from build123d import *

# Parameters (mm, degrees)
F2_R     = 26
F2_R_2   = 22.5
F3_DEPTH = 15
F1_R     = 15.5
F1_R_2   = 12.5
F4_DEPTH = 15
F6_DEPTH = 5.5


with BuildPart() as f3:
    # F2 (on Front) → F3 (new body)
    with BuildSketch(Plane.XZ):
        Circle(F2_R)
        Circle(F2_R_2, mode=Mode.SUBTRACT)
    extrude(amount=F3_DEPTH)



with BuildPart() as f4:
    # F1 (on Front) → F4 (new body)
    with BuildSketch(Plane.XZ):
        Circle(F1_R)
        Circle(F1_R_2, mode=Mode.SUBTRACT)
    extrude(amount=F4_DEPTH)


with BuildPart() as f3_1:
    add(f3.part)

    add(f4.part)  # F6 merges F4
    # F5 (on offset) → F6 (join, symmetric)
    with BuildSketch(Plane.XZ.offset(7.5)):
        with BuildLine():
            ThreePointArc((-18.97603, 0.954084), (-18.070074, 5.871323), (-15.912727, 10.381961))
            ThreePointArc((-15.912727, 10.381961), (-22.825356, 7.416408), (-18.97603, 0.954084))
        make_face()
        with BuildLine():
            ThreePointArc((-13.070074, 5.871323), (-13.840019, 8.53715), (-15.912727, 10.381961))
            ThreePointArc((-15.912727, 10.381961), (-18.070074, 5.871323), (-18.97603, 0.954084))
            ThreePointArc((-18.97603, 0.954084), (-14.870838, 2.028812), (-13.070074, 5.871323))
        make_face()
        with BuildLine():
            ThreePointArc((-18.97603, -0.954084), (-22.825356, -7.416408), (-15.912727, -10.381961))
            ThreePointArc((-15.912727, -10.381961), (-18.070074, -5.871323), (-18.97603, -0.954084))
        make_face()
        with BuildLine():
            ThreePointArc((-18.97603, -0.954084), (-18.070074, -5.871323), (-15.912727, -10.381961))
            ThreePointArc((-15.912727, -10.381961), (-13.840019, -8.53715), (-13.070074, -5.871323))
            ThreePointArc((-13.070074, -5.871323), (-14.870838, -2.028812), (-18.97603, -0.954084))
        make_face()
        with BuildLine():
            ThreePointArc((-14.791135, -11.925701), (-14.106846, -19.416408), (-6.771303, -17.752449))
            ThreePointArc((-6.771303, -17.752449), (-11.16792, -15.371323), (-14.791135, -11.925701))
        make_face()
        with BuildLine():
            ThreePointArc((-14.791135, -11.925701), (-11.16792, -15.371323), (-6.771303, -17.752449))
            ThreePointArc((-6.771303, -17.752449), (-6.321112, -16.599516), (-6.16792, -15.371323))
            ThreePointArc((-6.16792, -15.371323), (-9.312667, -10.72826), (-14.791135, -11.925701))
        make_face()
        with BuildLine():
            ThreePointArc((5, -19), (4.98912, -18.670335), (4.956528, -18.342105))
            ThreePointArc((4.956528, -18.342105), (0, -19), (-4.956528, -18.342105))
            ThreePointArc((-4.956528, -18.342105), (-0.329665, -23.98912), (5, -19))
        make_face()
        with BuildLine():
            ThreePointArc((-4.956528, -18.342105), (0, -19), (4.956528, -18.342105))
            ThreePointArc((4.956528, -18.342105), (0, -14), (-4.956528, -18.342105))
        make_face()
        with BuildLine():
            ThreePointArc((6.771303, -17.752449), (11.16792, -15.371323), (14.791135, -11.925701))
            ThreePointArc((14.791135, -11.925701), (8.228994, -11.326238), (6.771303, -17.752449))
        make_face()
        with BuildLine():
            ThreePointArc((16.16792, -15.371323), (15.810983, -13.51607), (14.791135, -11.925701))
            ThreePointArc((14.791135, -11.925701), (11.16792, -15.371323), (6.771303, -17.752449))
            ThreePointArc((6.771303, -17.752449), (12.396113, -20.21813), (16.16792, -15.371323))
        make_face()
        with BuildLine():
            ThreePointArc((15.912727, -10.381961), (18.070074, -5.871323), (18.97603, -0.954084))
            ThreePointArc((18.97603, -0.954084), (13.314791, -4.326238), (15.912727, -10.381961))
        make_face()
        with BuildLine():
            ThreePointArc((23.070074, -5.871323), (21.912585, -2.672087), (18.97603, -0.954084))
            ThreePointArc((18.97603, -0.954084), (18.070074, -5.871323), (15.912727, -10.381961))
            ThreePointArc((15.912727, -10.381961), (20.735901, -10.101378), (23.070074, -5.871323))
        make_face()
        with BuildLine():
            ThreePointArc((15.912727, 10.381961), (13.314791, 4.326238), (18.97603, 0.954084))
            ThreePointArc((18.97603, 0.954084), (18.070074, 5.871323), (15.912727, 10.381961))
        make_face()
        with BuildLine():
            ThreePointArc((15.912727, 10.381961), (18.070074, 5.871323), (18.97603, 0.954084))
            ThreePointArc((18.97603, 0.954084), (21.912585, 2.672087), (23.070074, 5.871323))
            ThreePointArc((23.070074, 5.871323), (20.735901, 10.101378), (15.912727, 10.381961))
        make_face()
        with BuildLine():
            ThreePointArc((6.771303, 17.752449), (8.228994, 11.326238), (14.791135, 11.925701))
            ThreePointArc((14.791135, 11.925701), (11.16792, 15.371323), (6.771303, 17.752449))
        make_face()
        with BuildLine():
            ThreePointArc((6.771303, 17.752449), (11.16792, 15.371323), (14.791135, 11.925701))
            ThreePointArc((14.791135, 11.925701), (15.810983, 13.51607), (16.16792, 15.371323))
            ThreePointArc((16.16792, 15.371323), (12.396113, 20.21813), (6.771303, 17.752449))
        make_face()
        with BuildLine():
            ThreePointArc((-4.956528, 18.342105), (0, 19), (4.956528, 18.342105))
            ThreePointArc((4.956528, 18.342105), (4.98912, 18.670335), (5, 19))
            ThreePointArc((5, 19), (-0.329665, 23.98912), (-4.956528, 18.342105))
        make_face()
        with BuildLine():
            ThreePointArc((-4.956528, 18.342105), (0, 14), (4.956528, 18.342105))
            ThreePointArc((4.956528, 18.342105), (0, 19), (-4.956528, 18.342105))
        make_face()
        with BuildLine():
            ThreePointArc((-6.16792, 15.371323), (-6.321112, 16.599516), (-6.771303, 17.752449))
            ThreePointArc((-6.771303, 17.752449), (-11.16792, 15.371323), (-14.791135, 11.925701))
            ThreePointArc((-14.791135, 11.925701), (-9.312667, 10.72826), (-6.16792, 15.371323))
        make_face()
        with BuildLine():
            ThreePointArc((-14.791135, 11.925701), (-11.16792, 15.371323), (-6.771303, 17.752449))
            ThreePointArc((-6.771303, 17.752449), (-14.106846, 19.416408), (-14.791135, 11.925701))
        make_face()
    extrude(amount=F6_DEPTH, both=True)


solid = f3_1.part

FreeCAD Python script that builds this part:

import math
import FreeCAD as App
import Part
import Sketcher
from FreeCAD import Vector

doc = App.newDocument("Part")
body = doc.addObject("PartDesign::Body", "Body")

sketch1 = body.newObject("Sketcher::SketchObject", "Sketch")
sketch1.AttachmentSupport = (doc.getObject("XZ_Plane"), [""])
sketch1.MapMode = "FlatFace"
sketch1.addGeometry(Part.Circle(Vector(0, 0, 0), Vector(0, 0, 1), 26), False)
sketch1.addGeometry(Part.Circle(Vector(0, 0, 0), Vector(0, 0, 1), 22.5), False)
sketch1.addConstraint(Sketcher.Constraint("Coincident", 0, 3, -1, 1))
sketch1.addConstraint(Sketcher.Constraint("Coincident", 1, 3, -1, 1))
sketch1.addConstraint(Sketcher.Constraint("Diameter", 0, 52.0))
sketch1.addConstraint(Sketcher.Constraint("Diameter", 1, 45.0))
pad1 = body.newObject("PartDesign::Pad", "Pad")
pad1.Profile = sketch1
pad1.Length = 15
body2 = doc.addObject("PartDesign::Body", "Body001")

sketch2 = body2.newObject("Sketcher::SketchObject", "Sketch001")
sketch2.AttachmentSupport = (doc.getObject("XZ_Plane001"), [""])
sketch2.MapMode = "FlatFace"
sketch2.addGeometry(Part.Circle(Vector(0, 0, 0), Vector(0, 0, 1), 15.5), False)
sketch2.addGeometry(Part.Circle(Vector(0, 0, 0), Vector(0, 0, 1), 12.5), False)
sketch2.addConstraint(Sketcher.Constraint("Coincident", 0, 3, -1, 1))
sketch2.addConstraint(Sketcher.Constraint("Coincident", 1, 3, -1, 1))
sketch2.addConstraint(Sketcher.Constraint("Diameter", 0, 31.0))
sketch2.addConstraint(Sketcher.Constraint("Diameter", 1, 25.0))
pad2 = body2.newObject("PartDesign::Pad", "Pad001")
pad2.Profile = sketch2
pad2.Length = 15
body.AllowCompound = True
doc.recompute()

boolean = body.newObject("PartDesign::Boolean", "Boolean")
boolean.Type = "Fuse"
boolean.addObjects([body2])

sketch3 = body.newObject("Sketcher::SketchObject", "Sketch002")
sketch3.AttachmentSupport = (doc.getObject("XZ_Plane"), [""])
sketch3.MapMode = "FlatFace"
sketch3.AttachmentOffset = App.Placement(Vector(0, 0, 7.5), App.Rotation())
sketch3.addGeometry(Part.ArcOfCircle(Part.Circle(Vector(-18.070074, 5.871323, 0), Vector(0, 0, 1), 5), math.radians(64.439156), math.radians(259.560843)), False)
sketch3.addGeometry(Part.ArcOfCircle(Part.Circle(Vector(-18.070073, 5.871322, 0), Vector(0, 0, 1), 4.999999), math.radians(-100.439164), math.radians(0.000008)), False)
sketch3.addGeometry(Part.ArcOfCircle(Part.Circle(Vector(-18.070075, 5.871323, 0), Vector(0, 0, 1), 5.000001), math.radians(0.000006), math.radians(64.439145)), False)
sketch3.addGeometry(Part.ArcOfCircle(Part.Circle(Vector(-18.070074, -5.871323, 0), Vector(0, 0, 1), 5), math.radians(100.439157), math.radians(295.560844)), False)
sketch3.addGeometry(Part.ArcOfCircle(Part.Circle(Vector(-18.070075, -5.871323, 0), Vector(0, 0, 1), 5.000001), math.radians(-64.439145), math.radians(-0.000006)), False)
sketch3.addGeometry(Part.ArcOfCircle(Part.Circle(Vector(-18.070073, -5.871322, 0), Vector(0, 0, 1), 4.999999), math.radians(-0.000008), math.radians(100.439164)), False)
sketch3.addGeometry(Part.ArcOfCircle(Part.Circle(Vector(-11.16792, -15.371323, 0), Vector(0, 0, 1), 5), math.radians(136.439162), math.radians(331.560848)), False)
sketch3.addGeometry(Part.ArcOfCircle(Part.Circle(Vector(-11.167905, -15.371327, 0), Vector(0, 0, 1), 4.999985), math.radians(-28.439191), math.radians(0.000049)), False)
sketch3.addGeometry(Part.ArcOfCircle(Part.Circle(Vector(-11.16792, -15.371323, 0), Vector(0, 0, 1), 5), math.radians(0.000003), math.radians(136.439159)), False)
sketch3.addGeometry(Part.ArcOfCircle(Part.Circle(Vector(-0.00002, -19.000005, 0), Vector(0, 0, 1), 5.00002), math.radians(0.000053), math.radians(7.560869)), False)
sketch3.addGeometry(Part.ArcOfCircle(Part.Circle(Vector(0, -18.999999, 0), Vector(0, 0, 1), 4.999999), math.radians(7.560841), math.radians(172.439159)), False)
sketch3.addGeometry(Part.ArcOfCircle(Part.Circle(Vector(0, -19, 0), Vector(0, 0, 1), 5), math.radians(172.439154), math.radians(360)), False)
sketch3.addGeometry(Part.ArcOfCircle(Part.Circle(Vector(11.16792, -15.371323, 0), Vector(0, 0, 1), 5), math.radians(43.560841), math.radians(208.439149)), False)
sketch3.addGeometry(Part.ArcOfCircle(Part.Circle(Vector(11.16792, -15.371322, 0), Vector(0, 0, 1), 5), math.radians(-151.560841), math.radians(-0.000007)), False)
sketch3.addGeometry(Part.ArcOfCircle(Part.Circle(Vector(11.167918, -15.371324, 0), Vector(0, 0, 1), 5.000002), math.radians(0.00001), math.radians(43.560835)), False)
sketch3.addGeometry(Part.ArcOfCircle(Part.Circle(Vector(18.070073, -5.871323, 0), Vector(0, 0, 1), 5), math.radians(79.56084), math.radians(244.439159)), False)
sketch3.addGeometry(Part.ArcOfCircle(Part.Circle(Vector(18.070074, -5.871323, 0), Vector(0, 0, 1), 5), math.radians(-115.560843), math.radians(-0.000003)), False)
sketch3.addGeometry(Part.ArcOfCircle(Part.Circle(Vector(18.070076, -5.871322, 0), Vector(0, 0, 1), 4.999998), math.radians(-0.000009), math.radians(79.560863)), False)
sketch3.addGeometry(Part.ArcOfCircle(Part.Circle(Vector(18.070073, 5.871323, 0), Vector(0, 0, 1), 5), math.radians(115.560841), math.radians(280.43916)), False)
sketch3.addGeometry(Part.ArcOfCircle(Part.Circle(Vector(18.070076, 5.871322, 0), Vector(0, 0, 1), 4.999998), math.radians(-79.560863), math.radians(0.000009)), False)
sketch3.addGeometry(Part.ArcOfCircle(Part.Circle(Vector(18.070074, 5.871323, 0), Vector(0, 0, 1), 5), math.radians(0.000003), math.radians(115.560843)), False)
sketch3.addGeometry(Part.ArcOfCircle(Part.Circle(Vector(11.16792, 15.371323, 0), Vector(0, 0, 1), 5), math.radians(151.560851), math.radians(316.439159)), False)
sketch3.addGeometry(Part.ArcOfCircle(Part.Circle(Vector(11.167918, 15.371324, 0), Vector(0, 0, 1), 5.000002), math.radians(-43.560835), math.radians(-0.00001)), False)
sketch3.addGeometry(Part.ArcOfCircle(Part.Circle(Vector(11.16792, 15.371322, 0), Vector(0, 0, 1), 5), math.radians(0.000007), math.radians(151.560841)), False)
sketch3.addGeometry(Part.ArcOfCircle(Part.Circle(Vector(-0.00002, 19.000005, 0), Vector(0, 0, 1), 5.00002), math.radians(-7.560869), math.radians(-0.000053)), False)
sketch3.addGeometry(Part.ArcOfCircle(Part.Circle(Vector(0, 19, 0), Vector(0, 0, 1), 5), math.radians(0), math.radians(187.560846)), False)
sketch3.addGeometry(Part.ArcOfCircle(Part.Circle(Vector(0, 18.999999, 0), Vector(0, 0, 1), 4.999999), math.radians(-172.439159), math.radians(-7.560841)), False)
sketch3.addGeometry(Part.ArcOfCircle(Part.Circle(Vector(-11.167905, 15.371327, 0), Vector(0, 0, 1), 4.999985), math.radians(-0.000049), math.radians(28.439191)), False)
sketch3.addGeometry(Part.ArcOfCircle(Part.Circle(Vector(-11.16792, 15.371323, 0), Vector(0, 0, 1), 5), math.radians(28.439152), math.radians(223.560838)), False)
sketch3.addGeometry(Part.ArcOfCircle(Part.Circle(Vector(-11.16792, 15.371323, 0), Vector(0, 0, 1), 5), math.radians(-136.439159), math.radians(-0.000003)), False)
sketch3.addConstraint(Sketcher.Constraint("Coincident", 0, 2, 1, 1))
sketch3.addConstraint(Sketcher.Constraint("Coincident", 1, 2, 2, 1))
sketch3.addConstraint(Sketcher.Constraint("Coincident", 2, 2, 0, 1))
sketch3.addConstraint(Sketcher.Constraint("Coincident", 3, 2, 4, 1))
sketch3.addConstraint(Sketcher.Constraint("Coincident", 4, 2, 5, 1))
sketch3.addConstraint(Sketcher.Constraint("Coincident", 5, 2, 3, 1))
sketch3.addConstraint(Sketcher.Constraint("Coincident", 6, 2, 7, 1))
sketch3.addConstraint(Sketcher.Constraint("Coincident", 7, 2, 8, 1))
sketch3.addConstraint(Sketcher.Constraint("Coincident", 8, 2, 6, 1))
sketch3.addConstraint(Sketcher.Constraint("Coincident", 9, 2, 10, 1))
sketch3.addConstraint(Sketcher.Constraint("Coincident", 10, 2, 11, 1))
sketch3.addConstraint(Sketcher.Constraint("Coincident", 11, 2, 9, 1))
sketch3.addConstraint(Sketcher.Constraint("Coincident", 12, 2, 13, 1))
sketch3.addConstraint(Sketcher.Constraint("Coincident", 13, 2, 14, 1))
sketch3.addConstraint(Sketcher.Constraint("Coincident", 14, 2, 12, 1))
sketch3.addConstraint(Sketcher.Constraint("Coincident", 15, 2, 16, 1))
sketch3.addConstraint(Sketcher.Constraint("Coincident", 16, 2, 17, 1))
sketch3.addConstraint(Sketcher.Constraint("Coincident", 17, 2, 15, 1))
sketch3.addConstraint(Sketcher.Constraint("Coincident", 18, 2, 19, 1))
sketch3.addConstraint(Sketcher.Constraint("Coincident", 19, 2, 20, 1))
sketch3.addConstraint(Sketcher.Constraint("Coincident", 20, 2, 18, 1))
sketch3.addConstraint(Sketcher.Constraint("Coincident", 21, 2, 22, 1))
sketch3.addConstraint(Sketcher.Constraint("Coincident", 22, 2, 23, 1))
sketch3.addConstraint(Sketcher.Constraint("Coincident", 23, 2, 21, 1))
sketch3.addConstraint(Sketcher.Constraint("Coincident", 24, 2, 25, 1))
sketch3.addConstraint(Sketcher.Constraint("Coincident", 25, 2, 26, 1))
sketch3.addConstraint(Sketcher.Constraint("Coincident", 26, 2, 24, 1))
sketch3.addConstraint(Sketcher.Constraint("Coincident", 27, 2, 28, 1))
sketch3.addConstraint(Sketcher.Constraint("Coincident", 28, 2, 29, 1))
sketch3.addConstraint(Sketcher.Constraint("Coincident", 29, 2, 27, 1))
sketch3.addConstraint(Sketcher.Constraint("Coincident", 1, 3, 0, 3))
sketch3.addConstraint(Sketcher.Constraint("Coincident", 4, 3, 3, 3))
sketch3.addConstraint(Sketcher.Constraint("Coincident", 8, 3, 6, 3))
sketch3.addConstraint(Sketcher.Constraint("Coincident", 11, 3, 10, 3))
sketch3.addConstraint(Sketcher.Constraint("Coincident", 13, 3, 12, 3))
sketch3.addConstraint(Sketcher.Constraint("Coincident", 16, 3, 15, 3))
sketch3.addConstraint(Sketcher.Constraint("Coincident", 19, 3, 18, 3))
sketch3.addConstraint(Sketcher.Constraint("Coincident", 22, 3, 21, 3))
sketch3.addConstraint(Sketcher.Constraint("Coincident", 26, 3, 25, 3))
sketch3.addConstraint(Sketcher.Constraint("Coincident", 29, 3, 28, 3))
sketch3.addConstraint(Sketcher.Constraint("PointOnObject", 10, 3, -2))
sketch3.addConstraint(Sketcher.Constraint("PointOnObject", 25, 3, -2))
sketch3.addConstraint(Sketcher.Constraint("Radius", 0, 5.0))
sketch3.addConstraint(Sketcher.Constraint("Radius", 2, 5.000001))
sketch3.addConstraint(Sketcher.Constraint("Radius", 3, 5.0))
sketch3.addConstraint(Sketcher.Constraint("Radius", 5, 4.999999))
sketch3.addConstraint(Sketcher.Constraint("Radius", 6, 5.0))
sketch3.addConstraint(Sketcher.Constraint("Radius", 10, 4.999999))
sketch3.addConstraint(Sketcher.Constraint("Radius", 12, 5.0))
sketch3.addConstraint(Sketcher.Constraint("Radius", 14, 5.000002))
sketch3.addConstraint(Sketcher.Constraint("Radius", 15, 5.0))
sketch3.addConstraint(Sketcher.Constraint("Radius", 17, 4.999998))
sketch3.addConstraint(Sketcher.Constraint("Radius", 18, 5.0))
sketch3.addConstraint(Sketcher.Constraint("Radius", 20, 5.0))
sketch3.addConstraint(Sketcher.Constraint("Radius", 21, 5.0))
sketch3.addConstraint(Sketcher.Constraint("Radius", 23, 5.0))
sketch3.addConstraint(Sketcher.Constraint("Radius", 25, 5.0))
sketch3.addConstraint(Sketcher.Constraint("Radius", 28, 5.0))
sketch3.addConstraint(Sketcher.Constraint("DistanceY", 10, 3, -1, 1, 18.999999))
sketch3.addConstraint(Sketcher.Constraint("DistanceY", -1, 1, 25, 3, 19.0))
sketch3.addConstraint(Sketcher.Constraint("DistanceY", 11, 2, -1, 1, 19.0))
sketch3.addConstraint(Sketcher.Constraint("DistanceY", -1, 1, 24, 2, 19.0))
sketch3.addConstraint(Sketcher.Constraint("DistanceY", 6, 3, 3, 3, 9.5))
sketch3.addConstraint(Sketcher.Constraint("DistanceY", 13, 3, 15, 3, 9.499999))
sketch3.addConstraint(Sketcher.Constraint("DistanceY", 18, 3, 21, 3, 9.5))
sketch3.addConstraint(Sketcher.Constraint("DistanceY", 0, 3, 28, 3, 9.5))
sketch3.addConstraint(Sketcher.Constraint("DistanceY", 1, 2, 28, 3, 9.5))
sketch3.addConstraint(Sketcher.Constraint("DistanceY", 13, 2, 15, 3, 9.5))
sketch3.addConstraint(Sketcher.Constraint("Radius", 9, 5.00002))
sketch3.addConstraint(Sketcher.Constraint("Radius", 24, 5.00002))
sketch3.addConstraint(Sketcher.Constraint("Radius", 7, 4.999985))
sketch3.addConstraint(Sketcher.Constraint("Radius", 27, 4.999985))
sketch3.addConstraint(Sketcher.Constraint("DistanceY", 8, 2, -1, 1, 11.925701))
sketch3.addConstraint(Sketcher.Constraint("DistanceY", 14, 2, -1, 1, 11.925701))
sketch3.addConstraint(Sketcher.Constraint("DistanceY", -1, 1, 21, 2, 11.925701))
sketch3.addConstraint(Sketcher.Constraint("DistanceY", -1, 1, 28, 2, 11.925701))
sketch3.addConstraint(Sketcher.Constraint("DistanceX", 6, 3, 9, 3, 11.1679))
sketch3.addConstraint(Sketcher.Constraint("DistanceX", 28, 3, 24, 3, 11.1679))
sketch3.addConstraint(Sketcher.Constraint("DistanceX", 7, 3, 6, 2, 4.396602))
sketch3.addConstraint(Sketcher.Constraint("DistanceY", 9, 3, 9, 2, 0.6579))
sketch3.addConstraint(Sketcher.Constraint("DistanceY", 9, 3, 10, 2, 0.6579))
sketch3.addConstraint(Sketcher.Constraint("DistanceY", 25, 2, 24, 3, 0.6579))
sketch3.addConstraint(Sketcher.Constraint("DistanceY", 26, 2, 24, 3, 0.6579))
sketch3.addConstraint(Sketcher.Constraint("DistanceX", 27, 3, 27, 2, 4.396602))
sketch3.addConstraint(Sketcher.Constraint("DistanceX", -1, 1, 12, 3, 11.16792))
sketch3.addConstraint(Sketcher.Constraint("DistanceX", -1, 1, 21, 3, 11.16792))
sketch3.addConstraint(Sketcher.Constraint("DistanceX", 0, 2, -1, 1, 18.97603))
sketch3.addConstraint(Sketcher.Constraint("DistanceY", -1, 1, 2, 2, 10.381961))
sketch3.addConstraint(Sketcher.Constraint("DistanceY", 3, 2, -1, 1, 10.381961))
sketch3.addConstraint(Sketcher.Constraint("DistanceX", 5, 2, -1, 1, 18.97603))
sketch3.addConstraint(Sketcher.Constraint("DistanceY", 6, 2, -1, 1, 17.752449))
sketch3.addConstraint(Sketcher.Constraint("DistanceY", 12, 2, -1, 1, 17.752449))
sketch3.addConstraint(Sketcher.Constraint("DistanceY", 15, 2, -1, 1, 10.381961))
sketch3.addConstraint(Sketcher.Constraint("DistanceX", -1, 1, 17, 2, 18.97603))
sketch3.addConstraint(Sketcher.Constraint("DistanceX", -1, 1, 18, 2, 18.97603))
sketch3.addConstraint(Sketcher.Constraint("DistanceY", -1, 1, 20, 2, 10.381961))
sketch3.addConstraint(Sketcher.Constraint("DistanceY", -1, 1, 23, 2, 17.752449))
sketch3.addConstraint(Sketcher.Constraint("DistanceY", -1, 1, 27, 2, 17.752449))
sketch3.addConstraint(Sketcher.Constraint("DistanceX", 3, 3, 7, 3, 6.902169))
sketch3.addConstraint(Sketcher.Constraint("DistanceX", 1, 3, 7, 3, 6.902168))
sketch3.addConstraint(Sketcher.Constraint("DistanceY", 9, 3, 12, 3, 3.628681))
sketch3.addConstraint(Sketcher.Constraint("DistanceY", 22, 3, 24, 3, 3.628681))
sketch3.addConstraint(Sketcher.Constraint("DistanceY", 3, 2, 4, 2, 4.510638))
sketch3.addConstraint(Sketcher.Constraint("DistanceY", 9, 3, 7, 2, 3.628682))
sketch3.addConstraint(Sketcher.Constraint("DistanceX", 14, 2, 15, 3, 3.278938))
sketch3.addConstraint(Sketcher.Constraint("DistanceY", 14, 2, 16, 2, 6.054378))
sketch3.addConstraint(Sketcher.Constraint("DistanceY", 18, 2, 19, 3, 4.917238))
sketch3.addConstraint(Sketcher.Constraint("DistanceY", 18, 2, 19, 2, 4.917239))
sketch3.addConstraint(Sketcher.Constraint("DistanceY", 29, 2, 25, 2, 2.970782))
sketch3.addConstraint(Sketcher.Constraint("DistanceY", -1, 1, 22, 2, 15.371323))
pad3 = body.newObject("PartDesign::Pad", "Pad002")
pad3.Profile = sketch3
pad3.Length = 11
pad3.Midplane = True

doc.recompute()
